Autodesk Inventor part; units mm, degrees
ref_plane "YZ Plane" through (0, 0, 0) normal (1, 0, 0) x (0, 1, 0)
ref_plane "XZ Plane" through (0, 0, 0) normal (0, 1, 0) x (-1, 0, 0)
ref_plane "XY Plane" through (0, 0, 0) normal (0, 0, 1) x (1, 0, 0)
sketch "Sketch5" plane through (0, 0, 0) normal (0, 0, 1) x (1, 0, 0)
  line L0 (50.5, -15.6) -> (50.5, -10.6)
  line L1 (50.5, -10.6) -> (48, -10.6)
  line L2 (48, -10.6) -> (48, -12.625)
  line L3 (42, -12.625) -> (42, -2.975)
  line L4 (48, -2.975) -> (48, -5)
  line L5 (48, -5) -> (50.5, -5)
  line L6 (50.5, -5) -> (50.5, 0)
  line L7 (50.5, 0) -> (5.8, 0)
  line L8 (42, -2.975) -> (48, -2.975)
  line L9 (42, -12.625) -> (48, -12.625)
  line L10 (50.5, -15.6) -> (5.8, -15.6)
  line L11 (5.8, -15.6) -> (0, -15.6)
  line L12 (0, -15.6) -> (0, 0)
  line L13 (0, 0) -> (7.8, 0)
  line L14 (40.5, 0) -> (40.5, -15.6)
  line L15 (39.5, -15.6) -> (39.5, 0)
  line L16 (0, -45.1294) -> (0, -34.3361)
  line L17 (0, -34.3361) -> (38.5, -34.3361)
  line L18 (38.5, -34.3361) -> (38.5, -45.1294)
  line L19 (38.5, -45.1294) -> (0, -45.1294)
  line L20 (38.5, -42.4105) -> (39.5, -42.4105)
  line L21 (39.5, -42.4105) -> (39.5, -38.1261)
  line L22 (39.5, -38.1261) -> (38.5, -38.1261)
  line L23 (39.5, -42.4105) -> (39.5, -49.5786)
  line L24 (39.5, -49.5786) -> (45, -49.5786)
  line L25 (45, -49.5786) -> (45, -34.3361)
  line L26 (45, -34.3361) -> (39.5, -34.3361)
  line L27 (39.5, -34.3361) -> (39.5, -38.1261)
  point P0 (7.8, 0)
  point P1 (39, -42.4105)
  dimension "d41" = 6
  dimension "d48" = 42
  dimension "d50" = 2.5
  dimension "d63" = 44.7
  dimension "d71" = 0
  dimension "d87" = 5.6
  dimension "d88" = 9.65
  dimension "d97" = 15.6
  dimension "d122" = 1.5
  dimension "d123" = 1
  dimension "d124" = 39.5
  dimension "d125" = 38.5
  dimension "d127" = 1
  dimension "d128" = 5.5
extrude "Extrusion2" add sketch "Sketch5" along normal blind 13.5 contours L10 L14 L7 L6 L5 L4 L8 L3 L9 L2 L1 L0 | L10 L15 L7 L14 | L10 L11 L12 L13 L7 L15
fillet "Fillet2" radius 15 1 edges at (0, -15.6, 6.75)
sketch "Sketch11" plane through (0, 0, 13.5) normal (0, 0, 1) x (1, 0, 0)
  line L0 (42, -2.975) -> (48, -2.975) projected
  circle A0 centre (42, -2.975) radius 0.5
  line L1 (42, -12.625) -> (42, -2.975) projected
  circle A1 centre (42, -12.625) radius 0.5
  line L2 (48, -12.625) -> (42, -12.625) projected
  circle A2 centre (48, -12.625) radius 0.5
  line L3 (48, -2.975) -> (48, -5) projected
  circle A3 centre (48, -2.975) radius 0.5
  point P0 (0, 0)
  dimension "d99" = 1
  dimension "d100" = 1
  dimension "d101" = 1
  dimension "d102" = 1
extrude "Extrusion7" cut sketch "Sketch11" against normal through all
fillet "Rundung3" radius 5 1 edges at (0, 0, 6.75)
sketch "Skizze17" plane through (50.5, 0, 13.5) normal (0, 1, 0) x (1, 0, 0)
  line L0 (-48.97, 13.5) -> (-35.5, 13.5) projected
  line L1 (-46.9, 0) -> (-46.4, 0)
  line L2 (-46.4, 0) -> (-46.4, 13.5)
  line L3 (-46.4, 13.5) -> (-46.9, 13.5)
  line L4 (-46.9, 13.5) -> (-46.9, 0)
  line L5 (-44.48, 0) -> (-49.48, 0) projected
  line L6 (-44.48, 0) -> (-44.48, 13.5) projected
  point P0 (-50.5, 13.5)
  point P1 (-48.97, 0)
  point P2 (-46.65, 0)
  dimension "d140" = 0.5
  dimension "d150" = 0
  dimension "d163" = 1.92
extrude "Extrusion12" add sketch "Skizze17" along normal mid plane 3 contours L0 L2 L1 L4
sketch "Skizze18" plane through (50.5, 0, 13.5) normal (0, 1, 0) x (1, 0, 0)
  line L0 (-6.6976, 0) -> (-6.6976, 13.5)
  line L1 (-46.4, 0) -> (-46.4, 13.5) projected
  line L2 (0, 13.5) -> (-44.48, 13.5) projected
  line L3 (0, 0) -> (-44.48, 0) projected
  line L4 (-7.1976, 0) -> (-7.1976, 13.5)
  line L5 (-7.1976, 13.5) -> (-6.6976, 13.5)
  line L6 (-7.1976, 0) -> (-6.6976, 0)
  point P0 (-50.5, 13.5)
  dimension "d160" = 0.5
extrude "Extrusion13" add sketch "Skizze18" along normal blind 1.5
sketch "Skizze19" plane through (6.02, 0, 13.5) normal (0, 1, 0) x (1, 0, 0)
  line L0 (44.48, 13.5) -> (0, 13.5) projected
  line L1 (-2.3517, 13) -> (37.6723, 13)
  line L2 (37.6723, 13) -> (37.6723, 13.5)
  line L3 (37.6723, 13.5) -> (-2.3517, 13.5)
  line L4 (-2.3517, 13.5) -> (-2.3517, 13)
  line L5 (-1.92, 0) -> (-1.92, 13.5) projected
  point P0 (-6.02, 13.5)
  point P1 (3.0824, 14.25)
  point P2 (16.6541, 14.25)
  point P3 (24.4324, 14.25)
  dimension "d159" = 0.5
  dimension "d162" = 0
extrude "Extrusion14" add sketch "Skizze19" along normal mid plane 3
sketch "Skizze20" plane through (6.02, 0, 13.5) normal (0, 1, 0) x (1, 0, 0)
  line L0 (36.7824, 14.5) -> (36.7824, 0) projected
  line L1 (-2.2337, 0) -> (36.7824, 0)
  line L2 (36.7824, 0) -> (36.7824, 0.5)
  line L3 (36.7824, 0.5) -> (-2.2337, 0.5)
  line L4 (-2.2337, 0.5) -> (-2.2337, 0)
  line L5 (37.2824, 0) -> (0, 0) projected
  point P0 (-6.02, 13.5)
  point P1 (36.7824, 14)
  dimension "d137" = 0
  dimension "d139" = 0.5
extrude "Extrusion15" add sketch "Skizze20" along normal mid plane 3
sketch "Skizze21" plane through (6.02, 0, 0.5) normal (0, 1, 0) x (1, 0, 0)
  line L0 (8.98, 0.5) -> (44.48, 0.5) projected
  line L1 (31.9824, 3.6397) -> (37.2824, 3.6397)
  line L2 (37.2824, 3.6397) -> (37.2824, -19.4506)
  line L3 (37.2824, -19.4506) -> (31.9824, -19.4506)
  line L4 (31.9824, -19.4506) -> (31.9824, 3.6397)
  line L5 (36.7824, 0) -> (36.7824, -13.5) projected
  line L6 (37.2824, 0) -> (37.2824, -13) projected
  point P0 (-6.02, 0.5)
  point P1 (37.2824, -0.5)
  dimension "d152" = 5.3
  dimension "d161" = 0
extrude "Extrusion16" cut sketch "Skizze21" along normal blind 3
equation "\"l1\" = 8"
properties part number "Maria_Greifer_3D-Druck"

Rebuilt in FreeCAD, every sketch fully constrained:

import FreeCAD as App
import Part
import Sketcher


def edges_at(feature, points):
    """Names of the edges that pass closest to the given points."""
    edges = feature.Shape.Edges
    near = lambda p: min(range(len(edges)), key=lambda i: edges[i].distToShape(Part.Vertex(*p))[0])
    return sorted({f"Edge{near(p) + 1}" for p in points})


def add_polygon(sketch, points):
    """Adds a closed chain of lines whose ends are joined by coincident constraints."""
    first, n = sketch.GeometryCount, len(points)
    for a, b in zip(points, points[1:] + points[:1]):
        sketch.addGeometry(Part.LineSegment(App.Vector(*a, 0), App.Vector(*b, 0)), False)
    for i in range(n):
        sketch.addConstraint(Sketcher.Constraint("Coincident", first + i, 2, first + (i + 1) % n, 1))

doc = App.newDocument("Part")
body = doc.addObject("PartDesign::Body", "Body")

# Sketch on XY plane
sketch1 = body.newObject("Sketcher::SketchObject", "Sketch")
sketch1.AttachmentSupport = (doc.getObject("XY_Plane"), [""])
sketch1.MapMode = "FlatFace"
add_polygon(sketch1, [(50.5, -15.6), (50.5, -10.6), (48, -10.6), (48, -12.6), (42, -12.6), (42, -3), (48, -3), (48, -5), (50.5, -5), (50.5, 0), (0, 0), (0, -15.6)])  # lines 0-11
sketch1.addConstraint([
    Sketcher.Constraint("Vertical", 0),
    Sketcher.Constraint("Horizontal", 1),
    Sketcher.Constraint("Vertical", 2),
    Sketcher.Constraint("Horizontal", 3),
    Sketcher.Constraint("Vertical", 4),
    Sketcher.Constraint("Horizontal", 5),
    Sketcher.Constraint("Vertical", 6),
    Sketcher.Constraint("Horizontal", 7),
    Sketcher.Constraint("Vertical", 8),
    Sketcher.Constraint("Horizontal", 9),
    Sketcher.Constraint("Vertical", 10),
    Sketcher.Constraint("Horizontal", 11),
    Sketcher.Constraint("Coincident", 9, 2, -1, 1),
    Sketcher.Constraint("Vertical", 2, 2, 5, 2),
    Sketcher.Constraint("Vertical", 0, 2, 7, 2),
    Sketcher.Constraint("Equal", 2, 6),
    Sketcher.Constraint("Equal", 0, 8),
    Sketcher.Constraint("DistanceX", 3, 2, 3, 1, 6.0),
    Sketcher.Constraint("DistanceX", 1, 2, 1, 1, 2.5),
    Sketcher.Constraint("DistanceY", 10, 2, 10, 1, 15.6),
    Sketcher.Constraint("DistanceX", -1, 1, 3, 2, 42.0),
    Sketcher.Constraint("DistanceY", 4, 1, 4, 2, 9.65),
    Sketcher.Constraint("DistanceY", 1, 2, 6, 2, 5.6),
])
pad1 = body.newObject("PartDesign::Pad", "Pad")
pad1.Profile = sketch1
pad1.Length = 13.5
doc.recompute()

fillet = body.newObject("PartDesign::Fillet", "Fillet")
fillet.Base = (pad1, edges_at(pad1, [(0, -15.6, 6.75)]))
fillet.Radius = 15

# Sketch on XY plane
sketch2 = body.newObject("Sketcher::SketchObject", "Sketch001")
sketch2.AttachmentSupport = (doc.getObject("XY_Plane"), [""])
sketch2.MapMode = "FlatFace"
sketch2.AttachmentOffset = App.Placement(App.Vector(0, 0, 13.5), App.Rotation())
sketch2.addGeometry([
    Part.Circle(App.Vector(42, -3, 0), App.Vector(0, 0, 1), 0.5),
    Part.Circle(App.Vector(48, -3, 0), App.Vector(0, 0, 1), 0.5),
    Part.Circle(App.Vector(48, -12.6, 0), App.Vector(0, 0, 1), 0.5),
    Part.Circle(App.Vector(42, -12.6, 0), App.Vector(0, 0, 1), 0.5),
], False)
sketch2.addConstraint([
    Sketcher.Constraint("Equal", 0, 1),
    Sketcher.Constraint("Equal", 1, 2),
    Sketcher.Constraint("Equal", 2, 3),
    Sketcher.Constraint("Horizontal", 0, 3, 1, 3),
    Sketcher.Constraint("Horizontal", 2, 3, 3, 3),
    Sketcher.Constraint("Vertical", 1, 3, 2, 3),
    Sketcher.Constraint("Vertical", 0, 3, 3, 3),
    Sketcher.Constraint("Diameter", 0, 1.0),
    Sketcher.Constraint("DistanceX", -1, 1, 0, 3, 42.0),
    Sketcher.Constraint("DistanceX", -1, 1, 1, 3, 48.0),
    Sketcher.Constraint("DistanceY", 2, 3, 1, 3, 9.65),
    Sketcher.Constraint("DistanceY", 0, 3, -1, 1, 2.975),
])
pocket1 = body.newObject("PartDesign::Pocket", "Pocket")
pocket1.Profile = sketch2
pocket1.Type = "ThroughAll"
doc.recompute()

fillet2 = body.newObject("PartDesign::Fillet", "Fillet001")
fillet2.Base = (pocket1, edges_at(pocket1, [(0, 0, 6.75)]))
fillet2.Radius = 5

# Sketch on XZ plane
sketch3 = body.newObject("Sketcher::SketchObject", "Sketch002")
sketch3.AttachmentSupport = (doc.getObject("XZ_Plane"), [""])
sketch3.MapMode = "FlatFace"
add_polygon(sketch3, [(4.1, 0), (3.6, 0), (3.6, 13.5), (4.1, 13.5)])  # lines 0-3
sketch3.addConstraint([
    Sketcher.Constraint("Horizontal", 0),
    Sketcher.Constraint("Vertical", 1),
    Sketcher.Constraint("Horizontal", 2),
    Sketcher.Constraint("Vertical", 3),
    Sketcher.Constraint("PointOnObject", 0, 2, -1),
    Sketcher.Constraint("DistanceX", 0, 2, 0, 1, 0.5),
    Sketcher.Constraint("DistanceY", 1, 1, 1, 2, 13.5),
    Sketcher.Constraint("DistanceX", -1, 1, 0, 2, 3.6),
])
pad2 = body.newObject("PartDesign::Pad", "Pad001")
pad2.Profile = sketch3
pad2.Length = 3
pad2.Midplane = True

# Sketch on XZ plane
sketch4 = body.newObject("Sketcher::SketchObject", "Sketch003")
sketch4.AttachmentSupport = (doc.getObject("XZ_Plane"), [""])
sketch4.MapMode = "FlatFace"
add_polygon(sketch4, [(43.3, 13.5), (43.8, 13.5), (43.8, 0), (43.3, 0)])  # lines 0-3
sketch4.addConstraint([
    Sketcher.Constraint("Horizontal", 0),
    Sketcher.Constraint("Vertical", 1),
    Sketcher.Constraint("Horizontal", 2),
    Sketcher.Constraint("Vertical", 3),
    Sketcher.Constraint("PointOnObject", 1, 2, -1),
    Sketcher.Constraint("DistanceX", 0, 1, 0, 2, 0.5),
    Sketcher.Constraint("DistanceY", 1, 2, 1, 1, 13.5),
    Sketcher.Constraint("DistanceX", -1, 1, 0, 2, 43.8024),
])
pad3 = body.newObject("PartDesign::Pad", "Pad002")
pad3.Profile = sketch4
pad3.Length = 1.5
pad3.Reversed = True

# Sketch on XZ plane
sketch5 = body.newObject("Sketcher::SketchObject", "Sketch004")
sketch5.AttachmentSupport = (doc.getObject("XZ_Plane"), [""])
sketch5.MapMode = "FlatFace"
add_polygon(sketch5, [(43.7, 0.5), (43.7, 0), (3.7, 0), (3.7, 0.5)])  # lines 0-3
sketch5.addConstraint([
    Sketcher.Constraint("Vertical", 0),
    Sketcher.Constraint("Horizontal", 1),
    Sketcher.Constraint("Vertical", 2),
    Sketcher.Constraint("Horizontal", 3),
    Sketcher.Constraint("PointOnObject", 0, 2, -1),
    Sketcher.Constraint("DistanceY", 0, 2, 0, 1, 0.5),
    Sketcher.Constraint("DistanceX", 1, 2, 1, 1, 40.024),
    Sketcher.Constraint("DistanceX", -1, 1, 0, 2, 43.6923),
])
pad4 = body.newObject("PartDesign::Pad", "Pad003")
pad4.Profile = sketch5
pad4.Length = 3
pad4.Midplane = True

# Sketch on XZ plane
sketch6 = body.newObject("Sketcher::SketchObject", "Sketch005")
sketch6.AttachmentSupport = (doc.getObject("XZ_Plane"), [""])
sketch6.MapMode = "FlatFace"
add_polygon(sketch6, [(42.8, 13.5), (42.8, 13), (3.8, 13), (3.8, 13.5)])  # lines 0-3
sketch6.addConstraint([
    Sketcher.Constraint("Vertical", 0),
    Sketcher.Constraint("Horizontal", 1),
    Sketcher.Constraint("Vertical", 2),
    Sketcher.Constraint("Horizontal", 3),
    Sketcher.Constraint("DistanceY", 0, 2, 0, 1, 0.5),
    Sketcher.Constraint("DistanceY", -1, 1, 0, 2, 13.0),
    Sketcher.Constraint("DistanceX", 1, 2, 1, 1, 39.016),
    Sketcher.Constraint("DistanceX", -1, 1, 0, 2, 42.8024),
])
pad5 = body.newObject("PartDesign::Pad", "Pad004")
pad5.Profile = sketch6
pad5.Length = 3
pad5.Midplane = True

# Sketch on XZ plane
sketch7 = body.newObject("Sketcher::SketchObject", "Sketch006")
sketch7.AttachmentSupport = (doc.getObject("XZ_Plane"), [""])
sketch7.MapMode = "FlatFace"
add_polygon(sketch7, [(38, -3), (38, 20), (43, 20), (43, -3)])  # lines 0-3
sketch7.addConstraint([
    Sketcher.Constraint("Vertical", 0),
    Sketcher.Constraint("Horizontal", 1),
    Sketcher.Constraint("Vertical", 2),
    Sketcher.Constraint("Horizontal", 3),
    Sketcher.Constraint("DistanceX", 1, 1, 1, 2, 5.3),
    Sketcher.Constraint("DistanceY", 0, 1, 0, 2, 23.0903),
    Sketcher.Constraint("DistanceX", -1, 1, 0, 2, 38.0024),
    Sketcher.Constraint("DistanceY", -1, 1, 0, 2, 19.9506),
])
pocket2 = body.newObject("PartDesign::Pocket", "Pocket001")
pocket2.Profile = sketch7
pocket2.Length = 3

doc.recompute()
